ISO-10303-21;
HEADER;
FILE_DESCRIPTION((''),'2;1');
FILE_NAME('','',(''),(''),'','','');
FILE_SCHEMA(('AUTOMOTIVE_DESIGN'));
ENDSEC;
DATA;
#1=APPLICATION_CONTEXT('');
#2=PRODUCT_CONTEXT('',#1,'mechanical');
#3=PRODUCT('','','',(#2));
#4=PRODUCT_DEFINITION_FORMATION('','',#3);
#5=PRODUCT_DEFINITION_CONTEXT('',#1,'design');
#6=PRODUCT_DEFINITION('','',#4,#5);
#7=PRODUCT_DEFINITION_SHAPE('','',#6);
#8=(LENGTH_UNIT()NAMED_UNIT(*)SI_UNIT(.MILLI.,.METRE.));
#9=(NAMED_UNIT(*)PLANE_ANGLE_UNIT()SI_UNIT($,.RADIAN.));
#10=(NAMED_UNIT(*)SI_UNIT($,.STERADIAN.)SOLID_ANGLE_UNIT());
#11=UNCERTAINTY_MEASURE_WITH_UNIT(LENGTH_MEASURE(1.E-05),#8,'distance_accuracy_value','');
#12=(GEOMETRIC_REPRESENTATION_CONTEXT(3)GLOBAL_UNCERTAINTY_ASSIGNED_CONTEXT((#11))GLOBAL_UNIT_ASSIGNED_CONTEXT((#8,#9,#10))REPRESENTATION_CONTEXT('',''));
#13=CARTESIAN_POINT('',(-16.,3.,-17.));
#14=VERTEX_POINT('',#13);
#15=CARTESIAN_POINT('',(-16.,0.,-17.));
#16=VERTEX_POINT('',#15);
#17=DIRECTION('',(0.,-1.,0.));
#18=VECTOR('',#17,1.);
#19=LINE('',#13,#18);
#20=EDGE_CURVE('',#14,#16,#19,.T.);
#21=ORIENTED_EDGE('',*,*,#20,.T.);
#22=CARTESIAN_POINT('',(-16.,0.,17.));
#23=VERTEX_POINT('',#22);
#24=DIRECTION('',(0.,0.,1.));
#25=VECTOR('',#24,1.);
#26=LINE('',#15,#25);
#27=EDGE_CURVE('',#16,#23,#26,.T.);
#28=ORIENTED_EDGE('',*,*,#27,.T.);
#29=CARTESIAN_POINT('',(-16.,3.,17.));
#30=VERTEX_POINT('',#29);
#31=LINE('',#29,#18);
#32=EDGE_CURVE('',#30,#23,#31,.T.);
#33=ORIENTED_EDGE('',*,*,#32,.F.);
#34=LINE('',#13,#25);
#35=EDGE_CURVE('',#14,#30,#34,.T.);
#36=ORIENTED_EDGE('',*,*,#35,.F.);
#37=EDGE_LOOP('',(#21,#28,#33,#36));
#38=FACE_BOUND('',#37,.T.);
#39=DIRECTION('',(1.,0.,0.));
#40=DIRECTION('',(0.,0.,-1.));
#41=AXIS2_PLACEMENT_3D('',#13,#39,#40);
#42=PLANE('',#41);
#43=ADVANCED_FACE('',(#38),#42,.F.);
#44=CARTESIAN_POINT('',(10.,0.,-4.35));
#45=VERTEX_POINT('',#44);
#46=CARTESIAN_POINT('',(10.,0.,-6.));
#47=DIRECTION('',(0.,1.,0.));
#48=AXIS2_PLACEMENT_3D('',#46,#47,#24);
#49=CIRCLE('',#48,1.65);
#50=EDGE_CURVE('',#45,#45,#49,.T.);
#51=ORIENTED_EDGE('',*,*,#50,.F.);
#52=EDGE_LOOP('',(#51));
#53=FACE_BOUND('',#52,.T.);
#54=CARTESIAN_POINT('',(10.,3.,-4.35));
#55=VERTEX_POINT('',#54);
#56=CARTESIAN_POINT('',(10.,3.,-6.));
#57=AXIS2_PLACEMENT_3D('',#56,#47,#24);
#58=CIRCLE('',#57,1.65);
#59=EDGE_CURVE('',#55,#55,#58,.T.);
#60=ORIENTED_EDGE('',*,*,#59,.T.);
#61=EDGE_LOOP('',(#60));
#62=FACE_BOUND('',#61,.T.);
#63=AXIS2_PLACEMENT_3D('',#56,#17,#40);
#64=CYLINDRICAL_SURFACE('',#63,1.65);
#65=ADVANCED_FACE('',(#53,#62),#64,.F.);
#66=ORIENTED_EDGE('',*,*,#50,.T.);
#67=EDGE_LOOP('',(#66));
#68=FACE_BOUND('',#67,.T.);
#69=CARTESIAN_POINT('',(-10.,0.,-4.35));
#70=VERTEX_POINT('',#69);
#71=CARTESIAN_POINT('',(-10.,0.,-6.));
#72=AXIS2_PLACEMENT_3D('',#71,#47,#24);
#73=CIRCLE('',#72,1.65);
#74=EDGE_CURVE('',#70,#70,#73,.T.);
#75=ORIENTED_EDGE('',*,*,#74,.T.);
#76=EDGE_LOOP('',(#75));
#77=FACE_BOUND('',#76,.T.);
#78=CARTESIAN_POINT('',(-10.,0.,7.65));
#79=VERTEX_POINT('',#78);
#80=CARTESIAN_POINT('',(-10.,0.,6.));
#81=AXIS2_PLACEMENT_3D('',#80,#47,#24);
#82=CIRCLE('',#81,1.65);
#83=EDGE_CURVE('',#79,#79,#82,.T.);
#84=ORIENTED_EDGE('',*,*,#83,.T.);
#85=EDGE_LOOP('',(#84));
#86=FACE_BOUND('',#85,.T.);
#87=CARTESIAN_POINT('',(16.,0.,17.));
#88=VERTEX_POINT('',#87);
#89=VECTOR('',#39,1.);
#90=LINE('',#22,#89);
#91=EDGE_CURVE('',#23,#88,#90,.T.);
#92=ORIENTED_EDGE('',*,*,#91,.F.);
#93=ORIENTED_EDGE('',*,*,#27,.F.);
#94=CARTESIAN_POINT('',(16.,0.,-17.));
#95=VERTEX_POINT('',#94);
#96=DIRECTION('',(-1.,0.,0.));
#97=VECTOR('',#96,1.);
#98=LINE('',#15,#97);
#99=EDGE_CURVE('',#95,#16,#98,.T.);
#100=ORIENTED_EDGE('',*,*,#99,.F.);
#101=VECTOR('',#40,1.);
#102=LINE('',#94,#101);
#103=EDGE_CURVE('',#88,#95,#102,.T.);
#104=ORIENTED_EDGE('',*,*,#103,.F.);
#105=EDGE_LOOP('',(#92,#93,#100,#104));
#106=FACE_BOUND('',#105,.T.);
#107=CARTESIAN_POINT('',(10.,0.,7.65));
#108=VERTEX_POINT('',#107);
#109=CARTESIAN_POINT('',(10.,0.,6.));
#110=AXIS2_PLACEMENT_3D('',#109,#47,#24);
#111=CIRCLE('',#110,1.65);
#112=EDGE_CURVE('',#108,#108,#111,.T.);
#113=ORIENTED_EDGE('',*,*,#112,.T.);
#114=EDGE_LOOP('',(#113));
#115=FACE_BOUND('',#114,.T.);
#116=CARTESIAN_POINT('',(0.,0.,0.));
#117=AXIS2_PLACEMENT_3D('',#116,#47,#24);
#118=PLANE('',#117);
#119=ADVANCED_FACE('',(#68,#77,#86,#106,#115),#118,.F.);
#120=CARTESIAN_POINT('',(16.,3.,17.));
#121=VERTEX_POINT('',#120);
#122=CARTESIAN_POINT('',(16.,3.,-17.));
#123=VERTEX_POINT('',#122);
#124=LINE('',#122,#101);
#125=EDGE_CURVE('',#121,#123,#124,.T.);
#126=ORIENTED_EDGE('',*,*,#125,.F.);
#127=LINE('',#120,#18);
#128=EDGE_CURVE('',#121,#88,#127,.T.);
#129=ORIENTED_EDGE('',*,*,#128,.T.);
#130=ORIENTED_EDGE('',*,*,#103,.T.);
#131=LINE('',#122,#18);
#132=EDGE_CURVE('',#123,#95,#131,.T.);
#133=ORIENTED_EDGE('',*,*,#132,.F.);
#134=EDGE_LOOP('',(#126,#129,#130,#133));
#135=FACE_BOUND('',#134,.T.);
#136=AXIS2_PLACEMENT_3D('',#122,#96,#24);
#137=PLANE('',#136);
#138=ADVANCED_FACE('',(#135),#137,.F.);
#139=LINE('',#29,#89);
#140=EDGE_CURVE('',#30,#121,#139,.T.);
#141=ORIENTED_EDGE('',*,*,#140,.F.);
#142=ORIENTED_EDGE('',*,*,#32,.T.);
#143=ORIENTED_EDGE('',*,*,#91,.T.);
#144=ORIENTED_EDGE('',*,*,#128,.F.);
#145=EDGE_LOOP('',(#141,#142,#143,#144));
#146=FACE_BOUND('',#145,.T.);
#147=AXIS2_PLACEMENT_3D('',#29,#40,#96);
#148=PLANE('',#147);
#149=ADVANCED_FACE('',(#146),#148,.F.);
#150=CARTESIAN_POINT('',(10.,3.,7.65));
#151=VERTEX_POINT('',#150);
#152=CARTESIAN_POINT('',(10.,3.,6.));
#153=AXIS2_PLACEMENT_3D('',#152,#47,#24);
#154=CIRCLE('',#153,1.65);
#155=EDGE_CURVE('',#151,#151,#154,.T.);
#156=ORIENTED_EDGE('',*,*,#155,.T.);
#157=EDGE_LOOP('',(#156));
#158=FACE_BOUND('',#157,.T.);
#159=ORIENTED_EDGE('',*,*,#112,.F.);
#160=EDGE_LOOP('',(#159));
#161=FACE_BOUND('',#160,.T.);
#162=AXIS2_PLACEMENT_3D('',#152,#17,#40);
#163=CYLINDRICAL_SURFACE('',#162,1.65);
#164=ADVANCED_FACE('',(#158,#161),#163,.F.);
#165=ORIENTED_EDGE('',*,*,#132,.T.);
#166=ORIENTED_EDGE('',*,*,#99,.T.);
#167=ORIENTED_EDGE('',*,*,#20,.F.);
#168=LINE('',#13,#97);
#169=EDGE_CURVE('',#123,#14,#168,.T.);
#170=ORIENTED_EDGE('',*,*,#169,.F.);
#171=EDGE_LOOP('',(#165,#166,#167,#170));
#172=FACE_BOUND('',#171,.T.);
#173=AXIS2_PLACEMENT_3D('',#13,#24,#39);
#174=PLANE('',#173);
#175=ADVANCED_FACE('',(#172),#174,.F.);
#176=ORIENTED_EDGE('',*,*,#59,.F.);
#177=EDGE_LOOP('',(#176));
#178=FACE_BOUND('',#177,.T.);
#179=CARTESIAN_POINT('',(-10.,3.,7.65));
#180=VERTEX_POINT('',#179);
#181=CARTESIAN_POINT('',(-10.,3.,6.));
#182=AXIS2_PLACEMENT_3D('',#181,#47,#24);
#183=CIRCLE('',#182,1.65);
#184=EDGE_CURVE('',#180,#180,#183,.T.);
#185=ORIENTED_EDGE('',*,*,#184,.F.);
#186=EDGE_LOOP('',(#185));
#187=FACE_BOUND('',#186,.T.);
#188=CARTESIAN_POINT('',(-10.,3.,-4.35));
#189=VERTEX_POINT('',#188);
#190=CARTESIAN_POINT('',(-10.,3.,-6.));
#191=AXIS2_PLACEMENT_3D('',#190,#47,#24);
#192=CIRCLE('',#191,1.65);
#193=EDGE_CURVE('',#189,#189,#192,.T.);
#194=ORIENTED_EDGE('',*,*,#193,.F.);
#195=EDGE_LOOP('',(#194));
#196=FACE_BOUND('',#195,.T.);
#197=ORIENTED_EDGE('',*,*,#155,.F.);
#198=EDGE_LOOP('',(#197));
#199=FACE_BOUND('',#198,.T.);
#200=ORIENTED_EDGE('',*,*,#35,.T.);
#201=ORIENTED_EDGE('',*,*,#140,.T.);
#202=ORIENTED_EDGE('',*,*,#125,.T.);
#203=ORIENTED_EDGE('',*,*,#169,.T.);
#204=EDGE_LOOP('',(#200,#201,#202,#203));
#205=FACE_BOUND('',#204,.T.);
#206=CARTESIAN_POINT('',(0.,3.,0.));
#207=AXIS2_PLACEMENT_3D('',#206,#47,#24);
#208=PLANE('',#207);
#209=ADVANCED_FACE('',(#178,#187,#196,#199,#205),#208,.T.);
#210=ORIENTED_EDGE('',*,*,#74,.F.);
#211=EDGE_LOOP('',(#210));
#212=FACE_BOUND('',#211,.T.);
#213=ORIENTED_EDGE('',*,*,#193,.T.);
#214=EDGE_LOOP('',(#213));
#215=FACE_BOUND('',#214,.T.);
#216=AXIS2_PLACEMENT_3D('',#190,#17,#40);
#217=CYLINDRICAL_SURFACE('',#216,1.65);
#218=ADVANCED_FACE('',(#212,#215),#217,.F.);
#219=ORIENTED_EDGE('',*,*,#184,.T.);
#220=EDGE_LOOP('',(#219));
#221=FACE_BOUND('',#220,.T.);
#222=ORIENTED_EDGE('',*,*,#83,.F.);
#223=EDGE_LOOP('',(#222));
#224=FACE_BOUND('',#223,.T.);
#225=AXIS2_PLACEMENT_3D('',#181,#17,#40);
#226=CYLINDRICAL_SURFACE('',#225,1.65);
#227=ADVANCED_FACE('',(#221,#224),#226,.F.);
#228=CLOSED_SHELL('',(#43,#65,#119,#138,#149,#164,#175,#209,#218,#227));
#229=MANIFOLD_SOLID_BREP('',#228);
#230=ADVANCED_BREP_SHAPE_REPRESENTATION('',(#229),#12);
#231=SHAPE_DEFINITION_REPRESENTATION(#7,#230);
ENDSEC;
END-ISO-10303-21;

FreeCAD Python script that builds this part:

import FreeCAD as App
import Part
import Sketcher
from FreeCAD import Vector


def add_polygon(sketch, points):
    """Adds a closed chain of lines whose ends are joined by coincident constraints."""
    first, n = sketch.GeometryCount, len(points)
    for a, b in zip(points, points[1:] + points[:1]):
        sketch.addGeometry(Part.LineSegment(App.Vector(*a, 0), App.Vector(*b, 0)), False)
    for i in range(n):
        sketch.addConstraint(Sketcher.Constraint("Coincident", first + i, 2, first + (i + 1) % n, 1))

doc = App.newDocument("Part")
body = doc.addObject("PartDesign::Body", "Body")

# Sketch on XZ plane
sketch1 = doc.addObject("Sketcher::SketchObject", "Sketch")
body.addObject(sketch1)
sketch1.AttachmentSupport = (doc.XZ_Plane, [""])
sketch1.MapMode = "FlatFace"
add_polygon(sketch1, [(-16, -17), (-16, 17), (16, 17), (16, -17)])  # lines 0-3
sketch1.addGeometry(Part.Circle(Vector(-10, 6, 0), Vector(0, 0, 1), 1.65), False)  # 4
sketch1.addGeometry(Part.Circle(Vector(10, 6, 0), Vector(0, 0, 1), 1.65), False)  # 5
sketch1.addGeometry(Part.Circle(Vector(-10, -6, 0), Vector(0, 0, 1), 1.65), False)  # 6
sketch1.addGeometry(Part.Circle(Vector(10, -6, 0), Vector(0, 0, 1), 1.65), False)  # 7
sketch1.addConstraint(Sketcher.Constraint("Vertical", 0))
sketch1.addConstraint(Sketcher.Constraint("Horizontal", 1))
sketch1.addConstraint(Sketcher.Constraint("Vertical", 2))
sketch1.addConstraint(Sketcher.Constraint("Horizontal", 3))
sketch1.addConstraint(Sketcher.Constraint("Equal", 4, 5))
sketch1.addConstraint(Sketcher.Constraint("Equal", 5, 6))
sketch1.addConstraint(Sketcher.Constraint("Equal", 6, 7))
sketch1.addConstraint(Sketcher.Constraint("Symmetric", 5, 3, 6, 3, -1, 1))
sketch1.addConstraint(Sketcher.Constraint("Symmetric", 4, 3, 7, 3, -1, 1))
sketch1.addConstraint(Sketcher.Constraint("Symmetric", 0, 2, 2, 2, -1, 1))
sketch1.addConstraint(Sketcher.Constraint("Symmetric", 4, 3, 5, 3, -2))
sketch1.addConstraint(Sketcher.Constraint("Diameter", 4, 3.3))
sketch1.addConstraint(Sketcher.Constraint("DistanceX", 1, 1, 1, 2, 32.0))
sketch1.addConstraint(Sketcher.Constraint("DistanceY", 0, 1, 0, 2, 34.0))
sketch1.addConstraint(Sketcher.Constraint("DistanceX", 4, 3, -1, 1, 10.0))
sketch1.addConstraint(Sketcher.Constraint("DistanceY", -1, 1, 4, 3, 6.0))
pad1 = doc.addObject("PartDesign::Pad", "Pad")
body.addObject(pad1)
pad1.Profile = sketch1
pad1.Length = 3
pad1.Reversed = True

doc.recompute()
